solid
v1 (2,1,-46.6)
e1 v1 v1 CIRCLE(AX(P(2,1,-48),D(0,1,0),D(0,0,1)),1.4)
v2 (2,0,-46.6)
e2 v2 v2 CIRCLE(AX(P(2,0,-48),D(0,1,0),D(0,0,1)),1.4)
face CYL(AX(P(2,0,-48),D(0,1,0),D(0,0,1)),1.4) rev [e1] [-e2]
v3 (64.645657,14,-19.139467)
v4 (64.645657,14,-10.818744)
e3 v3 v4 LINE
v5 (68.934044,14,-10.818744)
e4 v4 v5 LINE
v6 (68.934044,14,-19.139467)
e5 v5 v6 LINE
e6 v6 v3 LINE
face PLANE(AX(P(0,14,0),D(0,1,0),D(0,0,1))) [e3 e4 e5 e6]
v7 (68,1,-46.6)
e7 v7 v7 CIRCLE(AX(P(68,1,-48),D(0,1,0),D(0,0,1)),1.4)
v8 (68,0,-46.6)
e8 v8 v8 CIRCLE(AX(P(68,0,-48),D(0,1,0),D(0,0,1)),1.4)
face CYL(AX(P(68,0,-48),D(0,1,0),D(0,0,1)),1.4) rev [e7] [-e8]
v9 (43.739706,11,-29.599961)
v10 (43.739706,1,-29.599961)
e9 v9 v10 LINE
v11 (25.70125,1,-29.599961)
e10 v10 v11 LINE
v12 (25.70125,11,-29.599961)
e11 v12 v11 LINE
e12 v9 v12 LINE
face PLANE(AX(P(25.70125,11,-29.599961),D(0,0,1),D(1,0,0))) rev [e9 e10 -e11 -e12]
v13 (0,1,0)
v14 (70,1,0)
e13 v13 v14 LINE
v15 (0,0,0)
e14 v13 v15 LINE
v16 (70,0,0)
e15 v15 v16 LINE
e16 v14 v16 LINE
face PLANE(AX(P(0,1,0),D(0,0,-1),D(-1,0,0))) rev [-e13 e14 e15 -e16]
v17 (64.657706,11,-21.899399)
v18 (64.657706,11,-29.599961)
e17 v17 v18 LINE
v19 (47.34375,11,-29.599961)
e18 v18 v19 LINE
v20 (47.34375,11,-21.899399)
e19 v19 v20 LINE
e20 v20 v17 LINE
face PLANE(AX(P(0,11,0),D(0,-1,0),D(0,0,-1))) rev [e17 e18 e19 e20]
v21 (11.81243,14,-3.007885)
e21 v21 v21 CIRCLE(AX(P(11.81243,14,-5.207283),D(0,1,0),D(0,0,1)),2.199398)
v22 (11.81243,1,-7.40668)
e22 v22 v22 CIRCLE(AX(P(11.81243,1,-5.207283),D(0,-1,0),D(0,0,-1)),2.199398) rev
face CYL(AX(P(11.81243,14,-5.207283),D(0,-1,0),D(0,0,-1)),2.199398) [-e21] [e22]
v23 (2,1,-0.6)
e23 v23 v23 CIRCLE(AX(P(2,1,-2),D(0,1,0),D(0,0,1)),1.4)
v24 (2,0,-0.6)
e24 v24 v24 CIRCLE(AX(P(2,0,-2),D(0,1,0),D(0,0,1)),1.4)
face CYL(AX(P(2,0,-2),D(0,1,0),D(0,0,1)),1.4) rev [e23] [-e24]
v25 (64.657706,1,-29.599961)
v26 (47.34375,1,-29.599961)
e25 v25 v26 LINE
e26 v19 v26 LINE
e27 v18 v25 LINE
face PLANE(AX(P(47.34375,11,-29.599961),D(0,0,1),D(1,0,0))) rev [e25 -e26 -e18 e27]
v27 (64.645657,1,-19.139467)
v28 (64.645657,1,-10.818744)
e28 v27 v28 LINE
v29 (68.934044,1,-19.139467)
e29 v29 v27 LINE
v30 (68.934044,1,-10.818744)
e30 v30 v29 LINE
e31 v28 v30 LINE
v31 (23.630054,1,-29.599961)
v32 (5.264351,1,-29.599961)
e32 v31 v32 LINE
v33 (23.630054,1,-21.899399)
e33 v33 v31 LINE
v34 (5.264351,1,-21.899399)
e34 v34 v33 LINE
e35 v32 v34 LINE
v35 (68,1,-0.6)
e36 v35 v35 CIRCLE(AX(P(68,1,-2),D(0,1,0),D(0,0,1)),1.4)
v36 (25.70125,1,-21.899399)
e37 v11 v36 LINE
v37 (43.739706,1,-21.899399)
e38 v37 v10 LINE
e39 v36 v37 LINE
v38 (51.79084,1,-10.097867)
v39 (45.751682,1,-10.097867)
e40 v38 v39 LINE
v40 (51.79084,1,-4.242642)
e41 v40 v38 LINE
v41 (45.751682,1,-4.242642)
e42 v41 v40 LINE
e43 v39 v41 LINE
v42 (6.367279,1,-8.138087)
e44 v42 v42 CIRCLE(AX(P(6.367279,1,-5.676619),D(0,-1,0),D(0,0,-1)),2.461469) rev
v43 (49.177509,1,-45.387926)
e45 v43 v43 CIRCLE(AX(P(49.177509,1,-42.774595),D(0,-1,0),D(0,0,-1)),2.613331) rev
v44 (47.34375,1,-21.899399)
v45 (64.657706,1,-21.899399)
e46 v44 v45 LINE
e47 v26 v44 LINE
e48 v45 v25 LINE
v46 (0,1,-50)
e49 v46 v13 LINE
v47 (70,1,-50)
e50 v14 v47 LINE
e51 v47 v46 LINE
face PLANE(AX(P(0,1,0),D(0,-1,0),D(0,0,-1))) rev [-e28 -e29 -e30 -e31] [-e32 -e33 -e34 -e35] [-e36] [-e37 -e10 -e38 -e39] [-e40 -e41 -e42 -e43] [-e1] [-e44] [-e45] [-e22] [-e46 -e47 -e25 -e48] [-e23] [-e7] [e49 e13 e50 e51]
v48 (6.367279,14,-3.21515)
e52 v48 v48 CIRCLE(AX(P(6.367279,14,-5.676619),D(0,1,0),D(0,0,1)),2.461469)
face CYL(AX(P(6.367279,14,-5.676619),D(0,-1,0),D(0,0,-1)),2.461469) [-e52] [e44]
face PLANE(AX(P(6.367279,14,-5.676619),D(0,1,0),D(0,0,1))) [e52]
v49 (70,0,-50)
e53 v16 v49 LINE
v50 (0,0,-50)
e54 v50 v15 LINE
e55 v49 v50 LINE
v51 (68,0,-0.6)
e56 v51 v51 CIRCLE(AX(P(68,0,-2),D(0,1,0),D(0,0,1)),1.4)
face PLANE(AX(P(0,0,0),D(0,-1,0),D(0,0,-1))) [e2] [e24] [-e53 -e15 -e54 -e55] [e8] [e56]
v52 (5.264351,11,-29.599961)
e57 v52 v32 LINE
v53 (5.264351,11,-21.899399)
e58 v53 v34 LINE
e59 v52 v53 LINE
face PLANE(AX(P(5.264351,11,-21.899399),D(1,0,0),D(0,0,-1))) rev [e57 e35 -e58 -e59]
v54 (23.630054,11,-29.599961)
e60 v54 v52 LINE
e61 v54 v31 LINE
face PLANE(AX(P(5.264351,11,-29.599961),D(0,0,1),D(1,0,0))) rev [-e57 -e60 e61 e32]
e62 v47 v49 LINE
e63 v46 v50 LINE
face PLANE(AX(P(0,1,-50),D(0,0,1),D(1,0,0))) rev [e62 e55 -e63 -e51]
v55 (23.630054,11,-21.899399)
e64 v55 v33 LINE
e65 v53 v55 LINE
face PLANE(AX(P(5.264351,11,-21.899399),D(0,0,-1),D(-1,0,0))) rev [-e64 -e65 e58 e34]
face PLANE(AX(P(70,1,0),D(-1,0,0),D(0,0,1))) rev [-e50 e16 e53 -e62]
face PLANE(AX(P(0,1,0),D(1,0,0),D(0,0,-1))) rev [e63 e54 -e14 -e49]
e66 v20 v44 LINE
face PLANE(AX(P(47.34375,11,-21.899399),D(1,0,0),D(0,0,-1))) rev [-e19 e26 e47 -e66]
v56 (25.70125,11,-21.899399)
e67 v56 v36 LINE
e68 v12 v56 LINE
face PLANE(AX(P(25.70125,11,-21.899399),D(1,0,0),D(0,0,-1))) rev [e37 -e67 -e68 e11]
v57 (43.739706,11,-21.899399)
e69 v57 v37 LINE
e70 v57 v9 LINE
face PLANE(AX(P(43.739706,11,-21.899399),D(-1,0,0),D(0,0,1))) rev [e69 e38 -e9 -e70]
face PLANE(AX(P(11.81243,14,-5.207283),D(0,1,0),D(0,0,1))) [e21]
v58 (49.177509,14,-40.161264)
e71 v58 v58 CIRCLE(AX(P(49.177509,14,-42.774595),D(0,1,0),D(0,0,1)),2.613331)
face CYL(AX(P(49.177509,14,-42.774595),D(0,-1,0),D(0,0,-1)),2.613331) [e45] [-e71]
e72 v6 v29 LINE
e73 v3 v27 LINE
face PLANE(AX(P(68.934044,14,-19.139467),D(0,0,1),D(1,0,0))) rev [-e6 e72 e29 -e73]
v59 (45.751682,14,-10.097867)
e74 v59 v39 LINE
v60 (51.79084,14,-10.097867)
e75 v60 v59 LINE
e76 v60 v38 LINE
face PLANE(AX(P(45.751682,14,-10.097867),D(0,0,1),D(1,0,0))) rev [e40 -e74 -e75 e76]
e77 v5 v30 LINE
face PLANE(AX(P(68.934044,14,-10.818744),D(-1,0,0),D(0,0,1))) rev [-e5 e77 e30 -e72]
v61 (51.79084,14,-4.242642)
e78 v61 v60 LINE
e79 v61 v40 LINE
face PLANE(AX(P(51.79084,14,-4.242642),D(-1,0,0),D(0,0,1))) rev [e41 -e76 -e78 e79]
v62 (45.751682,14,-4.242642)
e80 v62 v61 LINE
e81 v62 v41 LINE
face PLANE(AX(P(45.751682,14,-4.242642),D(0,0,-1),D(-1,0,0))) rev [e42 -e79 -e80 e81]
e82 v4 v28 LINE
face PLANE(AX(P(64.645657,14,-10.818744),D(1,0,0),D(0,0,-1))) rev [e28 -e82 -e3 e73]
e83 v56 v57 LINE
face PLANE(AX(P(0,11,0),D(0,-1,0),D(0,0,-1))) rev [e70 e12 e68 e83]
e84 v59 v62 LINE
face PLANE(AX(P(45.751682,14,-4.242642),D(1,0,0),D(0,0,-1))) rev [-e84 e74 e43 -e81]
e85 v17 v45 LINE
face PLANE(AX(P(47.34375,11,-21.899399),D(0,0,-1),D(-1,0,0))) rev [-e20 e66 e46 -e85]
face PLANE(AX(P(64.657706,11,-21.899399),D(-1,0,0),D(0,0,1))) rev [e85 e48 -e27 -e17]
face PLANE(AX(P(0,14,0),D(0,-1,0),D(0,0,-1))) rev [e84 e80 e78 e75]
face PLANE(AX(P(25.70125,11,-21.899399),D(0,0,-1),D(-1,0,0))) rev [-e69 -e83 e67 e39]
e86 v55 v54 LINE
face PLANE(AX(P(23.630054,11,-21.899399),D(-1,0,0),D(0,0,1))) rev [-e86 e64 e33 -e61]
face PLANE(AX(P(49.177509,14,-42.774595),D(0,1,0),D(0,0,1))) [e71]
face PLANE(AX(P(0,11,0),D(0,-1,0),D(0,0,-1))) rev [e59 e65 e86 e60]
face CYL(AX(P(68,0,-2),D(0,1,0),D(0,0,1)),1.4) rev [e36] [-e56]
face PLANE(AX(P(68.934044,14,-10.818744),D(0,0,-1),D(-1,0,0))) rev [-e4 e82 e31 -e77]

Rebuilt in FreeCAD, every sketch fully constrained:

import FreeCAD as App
import Part
import Sketcher

doc = App.newDocument("Part")
body = doc.addObject("PartDesign::Body", "Body")

# Sketch on XZ plane
sketch1 = body.newObject("Sketcher::SketchObject", "Sketch")
sketch1.AttachmentSupport = (doc.getObject("XZ_Plane"), [""])
sketch1.MapMode = "FlatFace"
sketch1.addGeometry(Part.LineSegment(App.Vector(0, -50, 0), App.Vector(0, 0, 0)), False)
sketch1.addGeometry(Part.LineSegment(App.Vector(0, 0, 0), App.Vector(70, 0, 0)), False)
sketch1.addGeometry(Part.LineSegment(App.Vector(70, 0, 0), App.Vector(70, -50, 0)), False)
sketch1.addGeometry(Part.LineSegment(App.Vector(70, -50, 0), App.Vector(0, -50, 0)), False)
sketch1.addConstraint(Sketcher.Constraint("Coincident", 0, 2, 1, 1))
sketch1.addConstraint(Sketcher.Constraint("Coincident", 1, 2, 2, 1))
sketch1.addConstraint(Sketcher.Constraint("Coincident", 2, 2, 3, 1))
sketch1.addConstraint(Sketcher.Constraint("Coincident", 3, 2, 0, 1))
sketch1.addConstraint(Sketcher.Constraint("Vertical", 0))
sketch1.addConstraint(Sketcher.Constraint("Horizontal", 1))
sketch1.addConstraint(Sketcher.Constraint("Vertical", 2))
sketch1.addConstraint(Sketcher.Constraint("Horizontal", 3))
sketch1.addConstraint(Sketcher.Constraint("Coincident", 0, 2, -1, 1))
sketch1.addConstraint(Sketcher.Constraint("DistanceX", 1, 1, 1, 2, 70.0))
sketch1.addConstraint(Sketcher.Constraint("DistanceY", 0, 1, 0, 2, 50.0))
pad1 = body.newObject("PartDesign::Pad", "Pad")
pad1.Profile = sketch1
pad1.Length = 1
pad1.Reversed = True

# Sketch on XZ plane
sketch2 = body.newObject("Sketcher::SketchObject", "Sketch001")
sketch2.AttachmentSupport = (doc.getObject("XZ_Plane"), [""])
sketch2.MapMode = "FlatFace"
sketch2.AttachmentOffset = App.Placement(App.Vector(0, 0, -1), App.Rotation())
sketch2.addGeometry(Part.Circle(App.Vector(2, -48, 0), App.Vector(0, 0, 1), 1.4), False)
sketch2.addGeometry(Part.Circle(App.Vector(68, -48, 0), App.Vector(0, 0, 1), 1.4), False)
sketch2.addGeometry(Part.Circle(App.Vector(68, -2, 0), App.Vector(0, 0, 1), 1.4), False)
sketch2.addGeometry(Part.Circle(App.Vector(2, -2, 0), App.Vector(0, 0, 1), 1.4), False)
sketch2.addConstraint(Sketcher.Constraint("Equal", 0, 1))
sketch2.addConstraint(Sketcher.Constraint("Equal", 1, 2))
sketch2.addConstraint(Sketcher.Constraint("Equal", 2, 3))
sketch2.addConstraint(Sketcher.Constraint("Horizontal", 0, 3, 1, 3))
sketch2.addConstraint(Sketcher.Constraint("Horizontal", 2, 3, 3, 3))
sketch2.addConstraint(Sketcher.Constraint("Vertical", 1, 3, 2, 3))
sketch2.addConstraint(Sketcher.Constraint("Vertical", 0, 3, 3, 3))
sketch2.addConstraint(Sketcher.Constraint("Diameter", 0, 2.8))
sketch2.addConstraint(Sketcher.Constraint("DistanceX", -1, 1, 0, 3, 2.0))
sketch2.addConstraint(Sketcher.Constraint("DistanceY", 0, 3, -1, 1, 48.0))
sketch2.addConstraint(Sketcher.Constraint("DistanceX", -1, 1, 1, 3, 68.0))
sketch2.addConstraint(Sketcher.Constraint("DistanceY", 2, 3, -1, 1, 2.0))
pocket1 = body.newObject("PartDesign::Pocket", "Pocket")
pocket1.Profile = sketch2
pocket1.Type = "ThroughAll"
pocket1.Reversed = True

# Sketch on XZ plane
sketch3 = body.newObject("Sketcher::SketchObject", "Sketch002")
sketch3.AttachmentSupport = (doc.getObject("XZ_Plane"), [""])
sketch3.MapMode = "FlatFace"
sketch3.AttachmentOffset = App.Placement(App.Vector(0, 0, -1), App.Rotation())
sketch3.addGeometry(Part.LineSegment(App.Vector(5.264351, -29.599961, 0), App.Vector(5.264351, -21.899399, 0)), False)
sketch3.addGeometry(Part.LineSegment(App.Vector(5.264351, -21.899399, 0), App.Vector(23.630054, -21.899399, 0)), False)
sketch3.addGeometry(Part.LineSegment(App.Vector(23.630054, -21.899399, 0), App.Vector(23.630054, -29.599961, 0)), False)
sketch3.addGeometry(Part.LineSegment(App.Vector(23.630054, -29.599961, 0), App.Vector(5.264351, -29.599961, 0)), False)
sketch3.addGeometry(Part.LineSegment(App.Vector(25.70125, -29.599961, 0), App.Vector(25.70125, -21.899399, 0)), False)
sketch3.addGeometry(Part.LineSegment(App.Vector(25.70125, -21.899399, 0), App.Vector(43.739706, -21.899399, 0)), False)
sketch3.addGeometry(Part.LineSegment(App.Vector(43.739706, -21.899399, 0), App.Vector(43.739706, -29.599961, 0)), False)
sketch3.addGeometry(Part.LineSegment(App.Vector(43.739706, -29.599961, 0), App.Vector(25.70125, -29.599961, 0)), False)
sketch3.addGeometry(Part.LineSegment(App.Vector(47.34375, -29.599961, 0), App.Vector(47.34375, -21.899399, 0)), False)
sketch3.addGeometry(Part.LineSegment(App.Vector(47.34375, -21.899399, 0), App.Vector(64.657706, -21.899399, 0)), False)
sketch3.addGeometry(Part.LineSegment(App.Vector(64.657706, -21.899399, 0), App.Vector(64.657706, -29.599961, 0)), False)
sketch3.addGeometry(Part.LineSegment(App.Vector(64.657706, -29.599961, 0), App.Vector(47.34375, -29.599961, 0)), False)
sketch3.addConstraint(Sketcher.Constraint("Coincident", 0, 2, 1, 1))
sketch3.addConstraint(Sketcher.Constraint("Coincident", 1, 2, 2, 1))
sketch3.addConstraint(Sketcher.Constraint("Coincident", 2, 2, 3, 1))
sketch3.addConstraint(Sketcher.Constraint("Coincident", 3, 2, 0, 1))
sketch3.addConstraint(Sketcher.Constraint("Coincident", 4, 2, 5, 1))
sketch3.addConstraint(Sketcher.Constraint("Coincident", 5, 2, 6, 1))
sketch3.addConstraint(Sketcher.Constraint("Coincident", 6, 2, 7, 1))
sketch3.addConstraint(Sketcher.Constraint("Coincident", 7, 2, 4, 1))
sketch3.addConstraint(Sketcher.Constraint("Coincident", 8, 2, 9, 1))
sketch3.addConstraint(Sketcher.Constraint("Coincident", 9, 2, 10, 1))
sketch3.addConstraint(Sketcher.Constraint("Coincident", 10, 2, 11, 1))
sketch3.addConstraint(Sketcher.Constraint("Coincident", 11, 2, 8, 1))
sketch3.addConstraint(Sketcher.Constraint("Vertical", 0))
sketch3.addConstraint(Sketcher.Constraint("Horizontal", 1))
sketch3.addConstraint(Sketcher.Constraint("Vertical", 2))
sketch3.addConstraint(Sketcher.Constraint("Horizontal", 3))
sketch3.addConstraint(Sketcher.Constraint("Vertical", 4))
sketch3.addConstraint(Sketcher.Constraint("Horizontal", 5))
sketch3.addConstraint(Sketcher.Constraint("Vertical", 6))
sketch3.addConstraint(Sketcher.Constraint("Horizontal", 7))
sketch3.addConstraint(Sketcher.Constraint("Vertical", 8))
sketch3.addConstraint(Sketcher.Constraint("Horizontal", 9))
sketch3.addConstraint(Sketcher.Constraint("Vertical", 10))
sketch3.addConstraint(Sketcher.Constraint("Horizontal", 11))
sketch3.addConstraint(Sketcher.Constraint("Horizontal", 1, 2, 4, 2))
sketch3.addConstraint(Sketcher.Constraint("Horizontal", 3, 2, 6, 2))
sketch3.addConstraint(Sketcher.Constraint("Horizontal", 5, 2, 8, 2))
sketch3.addConstraint(Sketcher.Constraint("Horizontal", 7, 2, 10, 2))
sketch3.addConstraint(Sketcher.Constraint("DistanceX", 5, 2, 9, 2, 20.918))
sketch3.addConstraint(Sketcher.Constraint("DistanceY", 0, 1, 0, 2, 7.700562))
sketch3.addConstraint(Sketcher.Constraint("DistanceY", 0, 2, -1, 1, 21.899399))
sketch3.addConstraint(Sketcher.Constraint("DistanceX", 0, 2, 4, 2, 20.436899))
sketch3.addConstraint(Sketcher.Constraint("DistanceX", 4, 2, 8, 2, 21.6425))
sketch3.addConstraint(Sketcher.Constraint("DistanceX", 1, 1, 1, 2, 18.365703))
sketch3.addConstraint(Sketcher.Constraint("DistanceX", 5, 1, 5, 2, 18.038456))
sketch3.addConstraint(Sketcher.Constraint("DistanceX", -1, 1, 0, 2, 5.264351))
pad2 = body.newObject("PartDesign::Pad", "Pad001")
pad2.Profile = sketch3
pad2.Length = 10
pad2.Reversed = True

# Sketch on XZ plane
sketch4 = body.newObject("Sketcher::SketchObject", "Sketch003")
sketch4.AttachmentSupport = (doc.getObject("XZ_Plane"), [""])
sketch4.MapMode = "FlatFace"
sketch4.AttachmentOffset = App.Placement(App.Vector(0, 0, -1), App.Rotation())
sketch4.addGeometry(Part.Circle(App.Vector(11.81243, -5.207283, 0), App.Vector(0, 0, 1), 2.199398), False)
sketch4.addGeometry(Part.Circle(App.Vector(49.177509, -42.774595, 0), App.Vector(0, 0, 1), 2.613331), False)
sketch4.addGeometry(Part.LineSegment(App.Vector(45.751682, -10.097867, 0), App.Vector(45.751682, -4.242642, 0)), False)
sketch4.addGeometry(Part.LineSegment(App.Vector(45.751682, -4.242642, 0), App.Vector(51.79084, -4.242642, 0)), False)
sketch4.addGeometry(Part.LineSegment(App.Vector(51.79084, -4.242642, 0), App.Vector(51.79084, -10.097867, 0)), False)
sketch4.addGeometry(Part.LineSegment(App.Vector(51.79084, -10.097867, 0), App.Vector(45.751682, -10.097867, 0)), False)
sketch4.addGeometry(Part.LineSegment(App.Vector(64.645657, -19.139467, 0), App.Vector(64.645657, -10.818744, 0)), False)
sketch4.addGeometry(Part.LineSegment(App.Vector(64.645657, -10.818744, 0), App.Vector(68.934044, -10.818744, 0)), False)
sketch4.addGeometry(Part.LineSegment(App.Vector(68.934044, -10.818744, 0), App.Vector(68.934044, -19.139467, 0)), False)
sketch4.addGeometry(Part.LineSegment(App.Vector(68.934044, -19.139467, 0), App.Vector(64.645657, -19.139467, 0)), False)
sketch4.addConstraint(Sketcher.Constraint("Coincident", 2, 2, 3, 1))
sketch4.addConstraint(Sketcher.Constraint("Coincident", 3, 2, 4, 1))
sketch4.addConstraint(Sketcher.Constraint("Coincident", 4, 2, 5, 1))
sketch4.addConstraint(Sketcher.Constraint("Coincident", 5, 2, 2, 1))
sketch4.addConstraint(Sketcher.Constraint("Coincident", 6, 2, 7, 1))
sketch4.addConstraint(Sketcher.Constraint("Coincident", 7, 2, 8, 1))
sketch4.addConstraint(Sketcher.Constraint("Coincident", 8, 2, 9, 1))
sketch4.addConstraint(Sketcher.Constraint("Coincident", 9, 2, 6, 1))
sketch4.addConstraint(Sketcher.Constraint("Vertical", 2))
sketch4.addConstraint(Sketcher.Constraint("Horizontal", 3))
sketch4.addConstraint(Sketcher.Constraint("Vertical", 4))
sketch4.addConstraint(Sketcher.Constraint("Horizontal", 5))
sketch4.addConstraint(Sketcher.Constraint("Vertical", 6))
sketch4.addConstraint(Sketcher.Constraint("Horizontal", 7))
sketch4.addConstraint(Sketcher.Constraint("Vertical", 8))
sketch4.addConstraint(Sketcher.Constraint("Horizontal", 9))
sketch4.addConstraint(Sketcher.Constraint("Diameter", 0, 4.398795))
sketch4.addConstraint(Sketcher.Constraint("Diameter", 1, 5.226662))
sketch4.addConstraint(Sketcher.Constraint("DistanceX", 3, 1, 3, 2, 6.039158))
sketch4.addConstraint(Sketcher.Constraint("DistanceY", 8, 2, 4, 2, 9.0416))
sketch4.addConstraint(Sketcher.Constraint("DistanceX", 7, 1, 7, 2, 4.288387))
sketch4.addConstraint(Sketcher.Constraint("DistanceY", 2, 1, 2, 2, 5.855225))
sketch4.addConstraint(Sketcher.Constraint("DistanceY", 6, 1, 6, 2, 8.320723))
sketch4.addConstraint(Sketcher.Constraint("DistanceX", -1, 1, 0, 3, 11.81243))
sketch4.addConstraint(Sketcher.Constraint("DistanceX", -1, 1, 1, 3, 49.177509))
sketch4.addConstraint(Sketcher.Constraint("DistanceY", 2, 2, -1, 1, 4.242642))
sketch4.addConstraint(Sketcher.Constraint("DistanceX", -1, 1, 3, 2, 51.79084))
sketch4.addConstraint(Sketcher.Constraint("DistanceY", 0, 3, 2, 2, 0.964641))
sketch4.addConstraint(Sketcher.Constraint("DistanceY", 1, 3, 4, 2, 32.676728))
sketch4.addConstraint(Sketcher.Constraint("DistanceX", 1, 3, 6, 2, 15.468148))
pad3 = body.newObject("PartDesign::Pad", "Pad002")
pad3.Profile = sketch4
pad3.Length = 13
pad3.Reversed = True

# Sketch on XZ plane
sketch5 = body.newObject("Sketcher::SketchObject", "Sketch004")
sketch5.AttachmentSupport = (doc.getObject("XZ_Plane"), [""])
sketch5.MapMode = "FlatFace"
sketch5.AttachmentOffset = App.Placement(App.Vector(0, 0, -1), App.Rotation())
sketch5.addGeometry(Part.Circle(App.Vector(6.367279, -5.676619, 0), App.Vector(0, 0, 1), 2.461469), False)
sketch5.addConstraint(Sketcher.Constraint("Diameter", 0, 4.922937))
sketch5.addConstraint(Sketcher.Constraint("DistanceX", -1, 1, 0, 3, 6.367279))
sketch5.addConstraint(Sketcher.Constraint("DistanceY", 0, 3, -1, 1, 5.676619))
pad4 = body.newObject("PartDesign::Pad", "Pad003")
pad4.Profile = sketch5
pad4.Length = 13
pad4.Reversed = True

doc.recompute()
